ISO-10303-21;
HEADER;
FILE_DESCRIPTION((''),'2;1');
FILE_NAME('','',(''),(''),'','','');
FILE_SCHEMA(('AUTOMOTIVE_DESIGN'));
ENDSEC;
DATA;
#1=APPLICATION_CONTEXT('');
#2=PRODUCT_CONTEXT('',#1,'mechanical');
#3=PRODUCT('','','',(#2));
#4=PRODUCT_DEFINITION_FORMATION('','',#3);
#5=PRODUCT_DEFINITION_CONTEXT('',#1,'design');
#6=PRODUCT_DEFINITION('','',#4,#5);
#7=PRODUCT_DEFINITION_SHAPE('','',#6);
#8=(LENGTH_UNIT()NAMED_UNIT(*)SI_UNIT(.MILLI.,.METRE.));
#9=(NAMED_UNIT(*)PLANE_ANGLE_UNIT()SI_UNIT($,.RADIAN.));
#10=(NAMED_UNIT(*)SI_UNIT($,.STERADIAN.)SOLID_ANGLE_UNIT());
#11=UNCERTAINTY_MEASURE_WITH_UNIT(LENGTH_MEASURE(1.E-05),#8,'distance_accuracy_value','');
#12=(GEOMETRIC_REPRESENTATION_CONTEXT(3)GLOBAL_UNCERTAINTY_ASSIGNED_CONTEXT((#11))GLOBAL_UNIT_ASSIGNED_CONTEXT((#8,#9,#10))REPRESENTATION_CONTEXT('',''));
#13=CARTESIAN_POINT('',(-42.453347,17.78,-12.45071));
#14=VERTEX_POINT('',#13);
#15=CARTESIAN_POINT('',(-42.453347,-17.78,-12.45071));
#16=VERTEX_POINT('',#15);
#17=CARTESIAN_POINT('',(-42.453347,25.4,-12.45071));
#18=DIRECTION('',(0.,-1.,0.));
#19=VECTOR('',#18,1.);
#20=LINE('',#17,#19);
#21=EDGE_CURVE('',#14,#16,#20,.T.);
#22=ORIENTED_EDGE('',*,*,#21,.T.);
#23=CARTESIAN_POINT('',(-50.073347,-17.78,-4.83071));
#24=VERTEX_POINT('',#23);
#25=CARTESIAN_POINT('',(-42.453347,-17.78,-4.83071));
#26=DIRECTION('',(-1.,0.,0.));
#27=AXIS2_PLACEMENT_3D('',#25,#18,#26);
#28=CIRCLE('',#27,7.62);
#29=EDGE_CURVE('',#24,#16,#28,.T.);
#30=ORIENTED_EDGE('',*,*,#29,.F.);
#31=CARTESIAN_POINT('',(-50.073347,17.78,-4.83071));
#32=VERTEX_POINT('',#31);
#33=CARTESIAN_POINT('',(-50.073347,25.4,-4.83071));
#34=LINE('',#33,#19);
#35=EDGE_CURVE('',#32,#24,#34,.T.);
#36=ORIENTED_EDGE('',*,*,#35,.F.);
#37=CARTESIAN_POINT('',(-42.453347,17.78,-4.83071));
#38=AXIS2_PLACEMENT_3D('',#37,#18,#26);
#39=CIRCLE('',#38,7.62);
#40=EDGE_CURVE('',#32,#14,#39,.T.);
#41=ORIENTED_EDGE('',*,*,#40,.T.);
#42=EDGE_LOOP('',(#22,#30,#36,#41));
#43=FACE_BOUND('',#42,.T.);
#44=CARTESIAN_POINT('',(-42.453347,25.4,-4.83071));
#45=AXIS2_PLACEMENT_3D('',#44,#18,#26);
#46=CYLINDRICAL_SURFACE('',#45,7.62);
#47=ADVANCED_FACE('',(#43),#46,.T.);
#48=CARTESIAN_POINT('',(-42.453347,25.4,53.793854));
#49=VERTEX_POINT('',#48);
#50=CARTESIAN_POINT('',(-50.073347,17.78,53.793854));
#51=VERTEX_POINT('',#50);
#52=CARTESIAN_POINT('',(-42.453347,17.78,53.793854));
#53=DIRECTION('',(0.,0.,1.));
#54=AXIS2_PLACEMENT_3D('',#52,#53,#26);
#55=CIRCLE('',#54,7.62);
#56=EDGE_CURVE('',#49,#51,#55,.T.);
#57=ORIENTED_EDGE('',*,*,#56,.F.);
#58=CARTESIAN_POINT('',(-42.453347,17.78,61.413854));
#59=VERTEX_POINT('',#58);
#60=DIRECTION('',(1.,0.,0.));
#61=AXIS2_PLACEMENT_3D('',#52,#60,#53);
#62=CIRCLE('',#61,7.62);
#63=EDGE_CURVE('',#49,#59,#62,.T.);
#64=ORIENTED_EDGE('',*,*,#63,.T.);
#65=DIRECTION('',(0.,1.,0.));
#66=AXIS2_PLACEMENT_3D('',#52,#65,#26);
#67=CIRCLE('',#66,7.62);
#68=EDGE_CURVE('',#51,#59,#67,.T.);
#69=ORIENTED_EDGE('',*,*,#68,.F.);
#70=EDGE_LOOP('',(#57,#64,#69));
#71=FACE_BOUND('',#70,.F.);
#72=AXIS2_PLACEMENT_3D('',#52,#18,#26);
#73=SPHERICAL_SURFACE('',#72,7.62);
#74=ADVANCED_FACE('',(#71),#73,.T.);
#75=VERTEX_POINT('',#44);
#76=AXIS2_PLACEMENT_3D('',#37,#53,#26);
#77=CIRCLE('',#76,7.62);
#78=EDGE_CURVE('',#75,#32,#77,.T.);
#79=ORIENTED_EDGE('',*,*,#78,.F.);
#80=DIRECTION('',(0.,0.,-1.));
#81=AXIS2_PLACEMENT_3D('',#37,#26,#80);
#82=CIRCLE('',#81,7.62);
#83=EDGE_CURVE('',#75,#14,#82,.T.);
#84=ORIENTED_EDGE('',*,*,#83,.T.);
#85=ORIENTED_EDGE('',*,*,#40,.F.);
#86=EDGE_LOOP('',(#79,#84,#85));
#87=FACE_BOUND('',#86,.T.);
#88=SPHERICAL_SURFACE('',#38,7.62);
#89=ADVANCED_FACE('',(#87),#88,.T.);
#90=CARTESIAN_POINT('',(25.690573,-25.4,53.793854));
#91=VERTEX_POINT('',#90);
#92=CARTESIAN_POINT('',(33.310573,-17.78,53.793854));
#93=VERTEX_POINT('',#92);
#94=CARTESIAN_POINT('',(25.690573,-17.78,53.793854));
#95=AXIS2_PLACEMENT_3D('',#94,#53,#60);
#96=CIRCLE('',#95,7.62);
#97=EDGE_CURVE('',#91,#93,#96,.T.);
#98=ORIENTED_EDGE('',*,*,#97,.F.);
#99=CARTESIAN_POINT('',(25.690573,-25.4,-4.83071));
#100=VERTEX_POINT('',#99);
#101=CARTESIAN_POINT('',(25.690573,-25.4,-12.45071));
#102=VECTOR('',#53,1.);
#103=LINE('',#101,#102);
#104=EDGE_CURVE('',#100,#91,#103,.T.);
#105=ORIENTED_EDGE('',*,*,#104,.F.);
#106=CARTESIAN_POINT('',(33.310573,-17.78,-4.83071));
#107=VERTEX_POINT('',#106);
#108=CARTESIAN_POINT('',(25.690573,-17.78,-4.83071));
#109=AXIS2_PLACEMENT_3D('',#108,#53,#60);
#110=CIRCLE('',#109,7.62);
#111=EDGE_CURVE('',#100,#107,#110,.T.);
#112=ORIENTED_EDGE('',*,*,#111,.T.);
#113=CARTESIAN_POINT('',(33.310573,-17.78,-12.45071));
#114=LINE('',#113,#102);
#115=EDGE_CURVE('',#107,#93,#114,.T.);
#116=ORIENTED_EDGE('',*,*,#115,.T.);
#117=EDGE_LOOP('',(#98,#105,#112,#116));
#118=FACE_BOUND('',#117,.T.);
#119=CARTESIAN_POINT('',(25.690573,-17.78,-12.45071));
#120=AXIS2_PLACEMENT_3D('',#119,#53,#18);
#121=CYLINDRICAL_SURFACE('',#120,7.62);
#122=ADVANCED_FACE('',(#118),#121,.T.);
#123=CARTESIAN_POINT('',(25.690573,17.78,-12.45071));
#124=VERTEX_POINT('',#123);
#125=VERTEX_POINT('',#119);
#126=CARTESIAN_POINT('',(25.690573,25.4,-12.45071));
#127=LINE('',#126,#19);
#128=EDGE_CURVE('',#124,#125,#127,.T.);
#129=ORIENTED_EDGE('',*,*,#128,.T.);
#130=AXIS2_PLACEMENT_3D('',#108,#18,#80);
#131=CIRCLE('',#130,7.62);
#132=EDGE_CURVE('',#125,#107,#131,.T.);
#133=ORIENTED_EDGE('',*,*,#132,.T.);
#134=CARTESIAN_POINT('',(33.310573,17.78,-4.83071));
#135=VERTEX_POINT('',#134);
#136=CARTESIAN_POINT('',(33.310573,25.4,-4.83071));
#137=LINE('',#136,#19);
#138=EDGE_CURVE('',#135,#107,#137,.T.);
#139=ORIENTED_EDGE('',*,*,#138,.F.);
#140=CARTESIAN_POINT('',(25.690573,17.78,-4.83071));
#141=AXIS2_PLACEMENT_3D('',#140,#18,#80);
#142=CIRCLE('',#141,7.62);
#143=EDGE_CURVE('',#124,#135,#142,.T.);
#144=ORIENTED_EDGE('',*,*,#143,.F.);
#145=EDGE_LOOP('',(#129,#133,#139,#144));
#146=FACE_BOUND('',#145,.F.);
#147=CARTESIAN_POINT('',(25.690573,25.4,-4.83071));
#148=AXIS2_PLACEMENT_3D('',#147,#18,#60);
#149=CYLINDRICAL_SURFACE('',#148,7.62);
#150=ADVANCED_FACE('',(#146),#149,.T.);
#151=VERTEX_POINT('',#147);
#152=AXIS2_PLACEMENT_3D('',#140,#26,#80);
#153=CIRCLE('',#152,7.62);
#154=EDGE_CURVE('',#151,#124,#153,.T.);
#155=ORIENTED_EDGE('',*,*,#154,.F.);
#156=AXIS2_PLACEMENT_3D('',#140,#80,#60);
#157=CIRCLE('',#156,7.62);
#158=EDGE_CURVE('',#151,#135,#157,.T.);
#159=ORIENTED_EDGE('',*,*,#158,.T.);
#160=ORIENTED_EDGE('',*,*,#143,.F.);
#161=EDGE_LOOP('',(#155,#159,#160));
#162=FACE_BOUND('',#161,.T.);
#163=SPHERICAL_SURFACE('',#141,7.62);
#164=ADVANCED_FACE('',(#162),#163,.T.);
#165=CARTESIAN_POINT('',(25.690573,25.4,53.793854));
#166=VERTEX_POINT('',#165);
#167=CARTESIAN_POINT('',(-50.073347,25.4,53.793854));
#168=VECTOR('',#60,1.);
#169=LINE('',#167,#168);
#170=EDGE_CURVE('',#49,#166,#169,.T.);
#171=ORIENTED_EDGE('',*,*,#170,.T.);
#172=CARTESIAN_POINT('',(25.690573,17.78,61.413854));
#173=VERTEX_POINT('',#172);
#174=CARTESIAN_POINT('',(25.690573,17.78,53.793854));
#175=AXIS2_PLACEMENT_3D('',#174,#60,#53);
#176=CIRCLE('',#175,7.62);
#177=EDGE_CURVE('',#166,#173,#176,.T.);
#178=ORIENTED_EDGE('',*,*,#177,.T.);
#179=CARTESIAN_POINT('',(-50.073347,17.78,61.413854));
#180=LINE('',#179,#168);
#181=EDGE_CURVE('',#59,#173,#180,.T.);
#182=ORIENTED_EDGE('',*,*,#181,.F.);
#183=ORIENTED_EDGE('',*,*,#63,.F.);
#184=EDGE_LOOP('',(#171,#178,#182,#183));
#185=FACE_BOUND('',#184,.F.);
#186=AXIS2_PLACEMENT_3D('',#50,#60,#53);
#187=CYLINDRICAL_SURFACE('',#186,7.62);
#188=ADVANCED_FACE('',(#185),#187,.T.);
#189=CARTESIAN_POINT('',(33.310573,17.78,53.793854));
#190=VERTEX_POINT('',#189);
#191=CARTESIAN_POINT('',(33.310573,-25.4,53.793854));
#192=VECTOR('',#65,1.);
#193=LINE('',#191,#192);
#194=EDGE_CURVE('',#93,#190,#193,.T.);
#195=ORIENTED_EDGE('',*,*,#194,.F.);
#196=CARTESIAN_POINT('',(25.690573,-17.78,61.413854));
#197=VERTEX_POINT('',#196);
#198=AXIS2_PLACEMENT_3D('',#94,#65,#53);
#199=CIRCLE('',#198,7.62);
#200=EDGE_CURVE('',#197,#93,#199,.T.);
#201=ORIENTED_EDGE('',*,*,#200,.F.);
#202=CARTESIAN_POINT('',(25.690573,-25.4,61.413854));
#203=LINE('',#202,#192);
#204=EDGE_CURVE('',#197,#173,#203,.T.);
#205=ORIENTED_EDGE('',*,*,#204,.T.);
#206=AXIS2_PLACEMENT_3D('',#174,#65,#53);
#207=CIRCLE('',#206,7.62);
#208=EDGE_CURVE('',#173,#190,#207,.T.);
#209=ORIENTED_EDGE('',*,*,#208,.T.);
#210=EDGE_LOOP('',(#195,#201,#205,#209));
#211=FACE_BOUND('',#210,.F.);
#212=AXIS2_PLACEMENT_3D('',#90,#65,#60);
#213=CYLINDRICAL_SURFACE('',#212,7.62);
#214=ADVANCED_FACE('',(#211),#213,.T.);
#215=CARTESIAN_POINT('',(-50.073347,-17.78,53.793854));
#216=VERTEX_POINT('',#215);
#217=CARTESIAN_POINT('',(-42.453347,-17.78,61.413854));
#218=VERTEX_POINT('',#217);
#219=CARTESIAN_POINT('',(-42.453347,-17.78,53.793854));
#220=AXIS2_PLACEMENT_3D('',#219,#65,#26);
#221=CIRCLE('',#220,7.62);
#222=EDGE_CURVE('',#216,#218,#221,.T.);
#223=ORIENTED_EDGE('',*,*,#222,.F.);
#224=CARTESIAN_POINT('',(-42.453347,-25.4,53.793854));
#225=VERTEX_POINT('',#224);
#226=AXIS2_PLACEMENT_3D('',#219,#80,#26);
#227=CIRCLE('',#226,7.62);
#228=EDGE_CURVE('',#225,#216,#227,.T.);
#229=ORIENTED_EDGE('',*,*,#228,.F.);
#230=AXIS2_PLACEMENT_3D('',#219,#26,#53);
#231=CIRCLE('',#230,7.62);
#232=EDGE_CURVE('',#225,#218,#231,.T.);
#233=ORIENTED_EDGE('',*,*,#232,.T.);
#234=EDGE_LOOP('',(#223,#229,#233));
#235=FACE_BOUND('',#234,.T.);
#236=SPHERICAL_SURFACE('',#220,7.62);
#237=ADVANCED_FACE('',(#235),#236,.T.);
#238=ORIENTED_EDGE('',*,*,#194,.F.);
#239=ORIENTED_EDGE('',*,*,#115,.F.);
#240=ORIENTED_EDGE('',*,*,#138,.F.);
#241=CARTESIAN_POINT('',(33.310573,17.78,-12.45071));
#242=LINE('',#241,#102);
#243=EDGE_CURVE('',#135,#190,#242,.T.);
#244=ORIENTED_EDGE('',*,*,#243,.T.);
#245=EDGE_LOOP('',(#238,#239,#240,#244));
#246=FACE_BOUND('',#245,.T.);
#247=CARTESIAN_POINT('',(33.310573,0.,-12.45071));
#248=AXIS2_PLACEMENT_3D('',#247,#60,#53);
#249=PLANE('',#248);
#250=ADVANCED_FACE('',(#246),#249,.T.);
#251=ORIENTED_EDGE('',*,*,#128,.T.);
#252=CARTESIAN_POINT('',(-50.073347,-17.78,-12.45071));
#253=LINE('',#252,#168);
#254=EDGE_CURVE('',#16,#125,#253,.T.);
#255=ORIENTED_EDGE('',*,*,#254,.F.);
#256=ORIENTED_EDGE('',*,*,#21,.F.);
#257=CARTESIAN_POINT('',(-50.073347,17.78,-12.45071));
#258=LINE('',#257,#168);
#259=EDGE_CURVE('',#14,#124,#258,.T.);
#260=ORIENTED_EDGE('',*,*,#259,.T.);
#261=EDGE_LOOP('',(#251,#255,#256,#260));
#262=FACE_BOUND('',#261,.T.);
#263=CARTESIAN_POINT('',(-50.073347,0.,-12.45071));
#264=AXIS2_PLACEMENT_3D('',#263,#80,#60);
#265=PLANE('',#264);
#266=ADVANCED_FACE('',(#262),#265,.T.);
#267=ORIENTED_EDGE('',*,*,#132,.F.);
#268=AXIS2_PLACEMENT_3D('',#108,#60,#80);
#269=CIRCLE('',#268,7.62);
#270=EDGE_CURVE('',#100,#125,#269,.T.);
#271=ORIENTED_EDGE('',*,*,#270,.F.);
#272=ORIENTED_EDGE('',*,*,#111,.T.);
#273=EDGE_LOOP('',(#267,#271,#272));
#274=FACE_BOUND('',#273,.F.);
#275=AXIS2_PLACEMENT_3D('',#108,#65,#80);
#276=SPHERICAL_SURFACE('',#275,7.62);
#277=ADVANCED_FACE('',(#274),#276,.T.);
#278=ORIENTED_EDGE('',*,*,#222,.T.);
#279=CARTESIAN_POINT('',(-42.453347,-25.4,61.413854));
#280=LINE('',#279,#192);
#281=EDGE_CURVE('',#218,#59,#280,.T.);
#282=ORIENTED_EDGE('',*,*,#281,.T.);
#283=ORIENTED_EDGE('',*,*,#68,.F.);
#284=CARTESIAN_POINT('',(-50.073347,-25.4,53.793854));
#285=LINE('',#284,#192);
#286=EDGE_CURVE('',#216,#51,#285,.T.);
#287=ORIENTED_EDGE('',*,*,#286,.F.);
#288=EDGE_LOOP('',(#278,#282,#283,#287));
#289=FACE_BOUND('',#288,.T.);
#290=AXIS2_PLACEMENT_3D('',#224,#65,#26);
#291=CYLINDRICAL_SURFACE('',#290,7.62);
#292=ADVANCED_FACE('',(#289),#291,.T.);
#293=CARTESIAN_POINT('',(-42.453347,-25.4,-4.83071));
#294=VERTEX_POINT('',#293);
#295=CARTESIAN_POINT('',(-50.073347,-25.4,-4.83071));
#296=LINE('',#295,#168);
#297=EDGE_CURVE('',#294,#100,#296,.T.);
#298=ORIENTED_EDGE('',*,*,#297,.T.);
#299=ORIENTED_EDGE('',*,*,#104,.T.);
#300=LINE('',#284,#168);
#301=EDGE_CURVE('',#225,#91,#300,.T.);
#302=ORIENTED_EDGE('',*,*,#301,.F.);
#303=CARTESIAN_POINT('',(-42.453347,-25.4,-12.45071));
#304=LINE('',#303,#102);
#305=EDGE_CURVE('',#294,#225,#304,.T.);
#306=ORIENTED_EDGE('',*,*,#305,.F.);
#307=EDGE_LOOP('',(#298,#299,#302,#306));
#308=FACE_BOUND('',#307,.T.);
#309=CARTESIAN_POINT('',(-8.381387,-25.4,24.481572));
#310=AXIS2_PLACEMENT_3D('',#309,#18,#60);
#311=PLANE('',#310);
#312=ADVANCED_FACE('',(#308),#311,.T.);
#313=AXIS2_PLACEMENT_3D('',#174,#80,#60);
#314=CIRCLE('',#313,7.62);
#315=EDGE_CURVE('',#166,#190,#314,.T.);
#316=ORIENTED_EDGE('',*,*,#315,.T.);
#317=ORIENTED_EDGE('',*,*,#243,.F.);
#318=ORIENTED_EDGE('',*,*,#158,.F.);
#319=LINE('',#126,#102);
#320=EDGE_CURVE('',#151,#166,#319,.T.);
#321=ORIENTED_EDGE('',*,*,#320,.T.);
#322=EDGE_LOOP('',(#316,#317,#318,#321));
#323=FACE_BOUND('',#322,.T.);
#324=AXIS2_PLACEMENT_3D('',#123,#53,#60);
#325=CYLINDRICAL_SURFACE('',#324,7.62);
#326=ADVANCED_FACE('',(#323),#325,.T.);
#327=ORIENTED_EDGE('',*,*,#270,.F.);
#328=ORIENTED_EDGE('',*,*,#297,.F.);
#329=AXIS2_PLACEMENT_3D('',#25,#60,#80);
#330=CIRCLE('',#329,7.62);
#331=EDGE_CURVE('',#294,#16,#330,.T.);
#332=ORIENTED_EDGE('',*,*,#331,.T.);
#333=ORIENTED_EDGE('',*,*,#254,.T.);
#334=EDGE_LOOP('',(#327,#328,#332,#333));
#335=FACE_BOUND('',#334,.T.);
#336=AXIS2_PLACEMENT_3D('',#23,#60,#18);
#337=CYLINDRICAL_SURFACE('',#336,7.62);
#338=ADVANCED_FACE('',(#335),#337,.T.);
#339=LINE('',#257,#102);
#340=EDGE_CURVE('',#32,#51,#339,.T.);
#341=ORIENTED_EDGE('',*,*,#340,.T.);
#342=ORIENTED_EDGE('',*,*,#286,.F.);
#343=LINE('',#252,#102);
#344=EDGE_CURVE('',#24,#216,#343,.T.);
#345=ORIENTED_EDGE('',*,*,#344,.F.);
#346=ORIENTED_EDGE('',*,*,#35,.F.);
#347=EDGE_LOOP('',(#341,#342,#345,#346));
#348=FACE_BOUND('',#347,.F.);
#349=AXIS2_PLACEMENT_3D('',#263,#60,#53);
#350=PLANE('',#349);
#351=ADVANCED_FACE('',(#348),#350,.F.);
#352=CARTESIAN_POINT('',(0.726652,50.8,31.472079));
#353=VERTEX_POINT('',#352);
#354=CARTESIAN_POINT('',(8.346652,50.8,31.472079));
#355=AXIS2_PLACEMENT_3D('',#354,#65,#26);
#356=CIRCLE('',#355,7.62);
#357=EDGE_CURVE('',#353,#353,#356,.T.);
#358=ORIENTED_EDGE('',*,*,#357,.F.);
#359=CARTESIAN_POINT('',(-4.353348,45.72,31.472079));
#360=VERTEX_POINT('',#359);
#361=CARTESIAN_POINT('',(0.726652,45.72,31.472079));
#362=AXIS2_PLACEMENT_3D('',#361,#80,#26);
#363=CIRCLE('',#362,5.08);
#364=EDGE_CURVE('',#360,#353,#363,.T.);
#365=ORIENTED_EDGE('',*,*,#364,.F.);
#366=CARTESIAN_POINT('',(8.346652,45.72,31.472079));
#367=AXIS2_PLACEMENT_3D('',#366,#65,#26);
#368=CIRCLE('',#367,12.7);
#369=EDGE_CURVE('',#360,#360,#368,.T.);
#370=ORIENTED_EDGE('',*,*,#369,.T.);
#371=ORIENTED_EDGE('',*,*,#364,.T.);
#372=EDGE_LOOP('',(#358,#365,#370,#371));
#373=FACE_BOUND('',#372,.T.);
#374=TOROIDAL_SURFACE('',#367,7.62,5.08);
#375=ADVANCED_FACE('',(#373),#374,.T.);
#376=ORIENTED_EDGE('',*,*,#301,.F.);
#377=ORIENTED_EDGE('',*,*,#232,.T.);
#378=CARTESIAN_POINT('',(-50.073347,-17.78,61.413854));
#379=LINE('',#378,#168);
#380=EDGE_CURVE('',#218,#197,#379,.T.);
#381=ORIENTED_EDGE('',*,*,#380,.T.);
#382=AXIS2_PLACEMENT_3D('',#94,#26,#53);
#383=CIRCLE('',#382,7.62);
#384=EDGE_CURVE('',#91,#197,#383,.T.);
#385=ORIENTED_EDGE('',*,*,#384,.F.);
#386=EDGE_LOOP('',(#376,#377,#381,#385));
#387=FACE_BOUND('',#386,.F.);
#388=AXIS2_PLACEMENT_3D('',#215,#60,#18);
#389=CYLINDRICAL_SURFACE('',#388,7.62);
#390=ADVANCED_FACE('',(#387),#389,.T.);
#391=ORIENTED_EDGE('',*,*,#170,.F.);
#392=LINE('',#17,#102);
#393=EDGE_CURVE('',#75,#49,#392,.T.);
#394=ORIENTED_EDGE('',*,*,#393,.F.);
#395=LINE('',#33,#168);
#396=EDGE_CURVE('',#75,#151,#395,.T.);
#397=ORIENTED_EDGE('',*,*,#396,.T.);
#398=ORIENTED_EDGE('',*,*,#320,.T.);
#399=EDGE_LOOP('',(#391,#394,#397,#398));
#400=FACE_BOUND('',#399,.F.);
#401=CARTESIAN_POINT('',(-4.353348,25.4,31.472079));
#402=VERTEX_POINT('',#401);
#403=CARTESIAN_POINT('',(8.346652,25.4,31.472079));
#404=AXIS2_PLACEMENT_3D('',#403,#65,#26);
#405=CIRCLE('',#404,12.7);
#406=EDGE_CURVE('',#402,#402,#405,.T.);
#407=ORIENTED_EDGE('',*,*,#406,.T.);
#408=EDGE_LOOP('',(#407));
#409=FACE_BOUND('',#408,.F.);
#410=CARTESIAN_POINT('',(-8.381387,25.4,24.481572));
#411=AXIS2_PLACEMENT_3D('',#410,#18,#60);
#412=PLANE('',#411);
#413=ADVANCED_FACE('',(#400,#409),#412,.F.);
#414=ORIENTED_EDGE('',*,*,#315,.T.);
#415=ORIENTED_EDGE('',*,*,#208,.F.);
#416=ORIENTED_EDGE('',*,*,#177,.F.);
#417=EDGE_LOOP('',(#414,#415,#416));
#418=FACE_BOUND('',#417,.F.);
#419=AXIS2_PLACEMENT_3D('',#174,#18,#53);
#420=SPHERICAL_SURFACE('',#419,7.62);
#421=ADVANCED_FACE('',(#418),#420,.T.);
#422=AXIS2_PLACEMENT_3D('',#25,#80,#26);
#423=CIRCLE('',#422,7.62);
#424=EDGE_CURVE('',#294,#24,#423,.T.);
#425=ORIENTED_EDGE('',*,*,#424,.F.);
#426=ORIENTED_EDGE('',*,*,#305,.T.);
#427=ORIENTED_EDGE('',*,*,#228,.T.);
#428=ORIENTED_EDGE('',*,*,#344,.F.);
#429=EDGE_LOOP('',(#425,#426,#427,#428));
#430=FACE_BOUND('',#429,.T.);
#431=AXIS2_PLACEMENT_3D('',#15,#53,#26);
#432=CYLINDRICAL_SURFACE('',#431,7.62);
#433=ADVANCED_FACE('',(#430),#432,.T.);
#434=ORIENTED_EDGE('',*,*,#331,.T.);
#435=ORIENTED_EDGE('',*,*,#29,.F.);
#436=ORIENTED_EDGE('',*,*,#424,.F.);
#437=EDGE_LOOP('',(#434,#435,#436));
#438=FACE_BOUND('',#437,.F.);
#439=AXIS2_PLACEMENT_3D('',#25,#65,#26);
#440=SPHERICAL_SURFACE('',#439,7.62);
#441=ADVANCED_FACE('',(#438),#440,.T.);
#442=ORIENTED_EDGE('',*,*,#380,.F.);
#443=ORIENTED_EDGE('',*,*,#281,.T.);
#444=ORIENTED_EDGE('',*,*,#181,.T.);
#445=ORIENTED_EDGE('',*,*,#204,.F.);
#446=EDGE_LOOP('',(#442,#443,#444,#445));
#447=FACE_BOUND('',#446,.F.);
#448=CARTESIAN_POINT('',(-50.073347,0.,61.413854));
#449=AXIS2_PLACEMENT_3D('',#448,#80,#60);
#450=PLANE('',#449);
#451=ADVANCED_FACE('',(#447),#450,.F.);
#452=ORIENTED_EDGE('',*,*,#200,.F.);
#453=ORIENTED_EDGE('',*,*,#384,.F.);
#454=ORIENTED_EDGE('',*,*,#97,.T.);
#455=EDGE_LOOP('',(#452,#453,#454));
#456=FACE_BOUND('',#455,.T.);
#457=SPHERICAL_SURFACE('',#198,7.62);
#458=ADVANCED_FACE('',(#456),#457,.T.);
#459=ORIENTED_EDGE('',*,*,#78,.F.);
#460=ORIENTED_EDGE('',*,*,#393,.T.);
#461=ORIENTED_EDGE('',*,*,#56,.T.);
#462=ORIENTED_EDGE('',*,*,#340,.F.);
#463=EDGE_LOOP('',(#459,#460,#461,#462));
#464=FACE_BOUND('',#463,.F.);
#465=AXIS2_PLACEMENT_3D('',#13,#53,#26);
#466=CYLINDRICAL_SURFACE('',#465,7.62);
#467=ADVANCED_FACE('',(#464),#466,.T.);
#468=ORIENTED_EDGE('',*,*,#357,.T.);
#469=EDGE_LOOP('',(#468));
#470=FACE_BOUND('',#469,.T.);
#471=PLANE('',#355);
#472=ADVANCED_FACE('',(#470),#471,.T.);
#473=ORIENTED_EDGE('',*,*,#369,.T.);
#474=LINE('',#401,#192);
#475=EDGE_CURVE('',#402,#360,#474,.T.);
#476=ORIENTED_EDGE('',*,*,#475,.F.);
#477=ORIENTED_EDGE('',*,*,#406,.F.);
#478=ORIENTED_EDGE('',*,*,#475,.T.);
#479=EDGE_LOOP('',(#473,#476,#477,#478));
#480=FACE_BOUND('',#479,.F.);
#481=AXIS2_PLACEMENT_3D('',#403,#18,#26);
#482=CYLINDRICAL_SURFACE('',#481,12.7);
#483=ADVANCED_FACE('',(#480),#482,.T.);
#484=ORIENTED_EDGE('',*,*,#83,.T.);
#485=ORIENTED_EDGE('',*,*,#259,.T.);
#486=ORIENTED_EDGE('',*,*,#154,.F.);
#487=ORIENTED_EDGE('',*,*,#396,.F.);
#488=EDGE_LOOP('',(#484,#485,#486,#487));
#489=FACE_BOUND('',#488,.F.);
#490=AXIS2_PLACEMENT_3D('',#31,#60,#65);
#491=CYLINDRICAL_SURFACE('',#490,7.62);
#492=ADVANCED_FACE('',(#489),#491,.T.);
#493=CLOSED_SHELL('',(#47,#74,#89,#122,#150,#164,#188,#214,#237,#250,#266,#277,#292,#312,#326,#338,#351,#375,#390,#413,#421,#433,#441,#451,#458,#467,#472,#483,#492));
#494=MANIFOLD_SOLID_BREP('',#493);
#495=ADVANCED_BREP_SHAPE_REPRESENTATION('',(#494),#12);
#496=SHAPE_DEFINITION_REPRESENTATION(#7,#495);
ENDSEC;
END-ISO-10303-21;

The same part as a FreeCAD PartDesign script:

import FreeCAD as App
import Part
import Sketcher
Q = App.Units.Quantity


def edges_at(feature, points):
    """Names of the edges that pass closest to the given points."""
    edges = feature.Shape.Edges
    near = lambda p: min(range(len(edges)), key=lambda i: edges[i].distToShape(Part.Vertex(*p))[0])
    return sorted({f"Edge{near(p) + 1}" for p in points})

doc = App.newDocument("Part")
params = doc.addObject("Spreadsheet::Sheet", "Params")
for row, (alias, value) in enumerate([
    ("pad1_length", "2 in"),
    ("fillet_radius", "0.3 in"),
    ("sketch2_diameter", "1 in"),
    ("pad2_length", "1 in"),
    ("fillet2_radius", "0.2 in"),
], start=1):
    params.set(f"A{row}", alias)
    params.set(f"B{row}", "=" + value)
    params.setAlias(f"B{row}", alias)

body = doc.addObject("PartDesign::Body", "Body")

sketch1 = body.newObject("Sketcher::SketchObject", "Sketch")
sketch1.AttachmentSupport = (doc.getObject("XZ_Plane"), [""])
sketch1.MapMode = "FlatFace"
sketch1.addGeometry([
    Part.LineSegment(App.Vector(-50, 61, 0), App.Vector(-50, -12, 0)),
    Part.LineSegment(App.Vector(-50, -12, 0), App.Vector(33, -12, 0)),
    Part.LineSegment(App.Vector(33, -12, 0), App.Vector(33, 61, 0)),
    Part.LineSegment(App.Vector(33, 61, 0), App.Vector(-50, 61, 0)),
], False)
sketch1.addConstraint([
    Sketcher.Constraint("Coincident", 0, 2, 1, 1),
    Sketcher.Constraint("Coincident", 1, 2, 2, 1),
    Sketcher.Constraint("Coincident", 2, 2, 3, 1),
    Sketcher.Constraint("Coincident", 3, 2, 0, 1),
    Sketcher.Constraint("Vertical", 0),
    Sketcher.Constraint("Horizontal", 1),
    Sketcher.Constraint("Vertical", 2),
    Sketcher.Constraint("Horizontal", 3),
    Sketcher.Constraint("DistanceX", 1, 1, 1, 2, 83.383921),
    Sketcher.Constraint("DistanceY", 0, 2, 0, 1, 73.864564),
    Sketcher.Constraint("DistanceY", 0, 2, -1, 1, 12.45071),
    Sketcher.Constraint("DistanceX", 0, 2, -1, 1, 50.073347),
])
pad1 = body.newObject("PartDesign::Pad", "Pad")
pad1.Profile = sketch1
pad1.setExpression("Length", "Params.pad1_length")
pad1.Midplane = True
doc.recompute()

fillet = body.newObject("PartDesign::Fillet", "Fillet")
fillet.Base = (pad1, ["Edge1"])
fillet.UseAllEdges = True
fillet.setExpression("Radius", "Params.fillet_radius")

sketch2 = body.newObject("Sketcher::SketchObject", "Sketch001")
sketch2.AttachmentSupport = (doc.getObject("XZ_Plane"), [""])
sketch2.MapMode = "FlatFace"
sketch2.AttachmentOffset = App.Placement(App.Vector(0, 0, -1 * 25.4), App.Rotation())
sketch2.addGeometry(Part.Circle(App.Vector(8, 31, 0), App.Vector(0, 0, 1), 13), False)
sketch2.addConstraint([
    Sketcher.Constraint("Diameter", 0, Q("1 in")),
    Sketcher.Constraint("DistanceY", -1, 1, 0, 3, 31.472079),
    Sketcher.Constraint("DistanceX", -1, 1, 0, 3, 8.346652),
])
sketch2.setExpression("Constraints[0]", "Params.sketch2_diameter")
pad2 = body.newObject("PartDesign::Pad", "Pad001")
pad2.Profile = sketch2
pad2.setExpression("Length", "Params.pad2_length")
pad2.Reversed = True
doc.recompute()

fillet2 = body.newObject("PartDesign::Fillet", "Fillet001")
fillet2.Base = (pad2, edges_at(pad2, [(21.047, 50.8, 31.472)]))
fillet2.setExpression("Radius", "Params.fillet2_radius")

doc.recompute()
